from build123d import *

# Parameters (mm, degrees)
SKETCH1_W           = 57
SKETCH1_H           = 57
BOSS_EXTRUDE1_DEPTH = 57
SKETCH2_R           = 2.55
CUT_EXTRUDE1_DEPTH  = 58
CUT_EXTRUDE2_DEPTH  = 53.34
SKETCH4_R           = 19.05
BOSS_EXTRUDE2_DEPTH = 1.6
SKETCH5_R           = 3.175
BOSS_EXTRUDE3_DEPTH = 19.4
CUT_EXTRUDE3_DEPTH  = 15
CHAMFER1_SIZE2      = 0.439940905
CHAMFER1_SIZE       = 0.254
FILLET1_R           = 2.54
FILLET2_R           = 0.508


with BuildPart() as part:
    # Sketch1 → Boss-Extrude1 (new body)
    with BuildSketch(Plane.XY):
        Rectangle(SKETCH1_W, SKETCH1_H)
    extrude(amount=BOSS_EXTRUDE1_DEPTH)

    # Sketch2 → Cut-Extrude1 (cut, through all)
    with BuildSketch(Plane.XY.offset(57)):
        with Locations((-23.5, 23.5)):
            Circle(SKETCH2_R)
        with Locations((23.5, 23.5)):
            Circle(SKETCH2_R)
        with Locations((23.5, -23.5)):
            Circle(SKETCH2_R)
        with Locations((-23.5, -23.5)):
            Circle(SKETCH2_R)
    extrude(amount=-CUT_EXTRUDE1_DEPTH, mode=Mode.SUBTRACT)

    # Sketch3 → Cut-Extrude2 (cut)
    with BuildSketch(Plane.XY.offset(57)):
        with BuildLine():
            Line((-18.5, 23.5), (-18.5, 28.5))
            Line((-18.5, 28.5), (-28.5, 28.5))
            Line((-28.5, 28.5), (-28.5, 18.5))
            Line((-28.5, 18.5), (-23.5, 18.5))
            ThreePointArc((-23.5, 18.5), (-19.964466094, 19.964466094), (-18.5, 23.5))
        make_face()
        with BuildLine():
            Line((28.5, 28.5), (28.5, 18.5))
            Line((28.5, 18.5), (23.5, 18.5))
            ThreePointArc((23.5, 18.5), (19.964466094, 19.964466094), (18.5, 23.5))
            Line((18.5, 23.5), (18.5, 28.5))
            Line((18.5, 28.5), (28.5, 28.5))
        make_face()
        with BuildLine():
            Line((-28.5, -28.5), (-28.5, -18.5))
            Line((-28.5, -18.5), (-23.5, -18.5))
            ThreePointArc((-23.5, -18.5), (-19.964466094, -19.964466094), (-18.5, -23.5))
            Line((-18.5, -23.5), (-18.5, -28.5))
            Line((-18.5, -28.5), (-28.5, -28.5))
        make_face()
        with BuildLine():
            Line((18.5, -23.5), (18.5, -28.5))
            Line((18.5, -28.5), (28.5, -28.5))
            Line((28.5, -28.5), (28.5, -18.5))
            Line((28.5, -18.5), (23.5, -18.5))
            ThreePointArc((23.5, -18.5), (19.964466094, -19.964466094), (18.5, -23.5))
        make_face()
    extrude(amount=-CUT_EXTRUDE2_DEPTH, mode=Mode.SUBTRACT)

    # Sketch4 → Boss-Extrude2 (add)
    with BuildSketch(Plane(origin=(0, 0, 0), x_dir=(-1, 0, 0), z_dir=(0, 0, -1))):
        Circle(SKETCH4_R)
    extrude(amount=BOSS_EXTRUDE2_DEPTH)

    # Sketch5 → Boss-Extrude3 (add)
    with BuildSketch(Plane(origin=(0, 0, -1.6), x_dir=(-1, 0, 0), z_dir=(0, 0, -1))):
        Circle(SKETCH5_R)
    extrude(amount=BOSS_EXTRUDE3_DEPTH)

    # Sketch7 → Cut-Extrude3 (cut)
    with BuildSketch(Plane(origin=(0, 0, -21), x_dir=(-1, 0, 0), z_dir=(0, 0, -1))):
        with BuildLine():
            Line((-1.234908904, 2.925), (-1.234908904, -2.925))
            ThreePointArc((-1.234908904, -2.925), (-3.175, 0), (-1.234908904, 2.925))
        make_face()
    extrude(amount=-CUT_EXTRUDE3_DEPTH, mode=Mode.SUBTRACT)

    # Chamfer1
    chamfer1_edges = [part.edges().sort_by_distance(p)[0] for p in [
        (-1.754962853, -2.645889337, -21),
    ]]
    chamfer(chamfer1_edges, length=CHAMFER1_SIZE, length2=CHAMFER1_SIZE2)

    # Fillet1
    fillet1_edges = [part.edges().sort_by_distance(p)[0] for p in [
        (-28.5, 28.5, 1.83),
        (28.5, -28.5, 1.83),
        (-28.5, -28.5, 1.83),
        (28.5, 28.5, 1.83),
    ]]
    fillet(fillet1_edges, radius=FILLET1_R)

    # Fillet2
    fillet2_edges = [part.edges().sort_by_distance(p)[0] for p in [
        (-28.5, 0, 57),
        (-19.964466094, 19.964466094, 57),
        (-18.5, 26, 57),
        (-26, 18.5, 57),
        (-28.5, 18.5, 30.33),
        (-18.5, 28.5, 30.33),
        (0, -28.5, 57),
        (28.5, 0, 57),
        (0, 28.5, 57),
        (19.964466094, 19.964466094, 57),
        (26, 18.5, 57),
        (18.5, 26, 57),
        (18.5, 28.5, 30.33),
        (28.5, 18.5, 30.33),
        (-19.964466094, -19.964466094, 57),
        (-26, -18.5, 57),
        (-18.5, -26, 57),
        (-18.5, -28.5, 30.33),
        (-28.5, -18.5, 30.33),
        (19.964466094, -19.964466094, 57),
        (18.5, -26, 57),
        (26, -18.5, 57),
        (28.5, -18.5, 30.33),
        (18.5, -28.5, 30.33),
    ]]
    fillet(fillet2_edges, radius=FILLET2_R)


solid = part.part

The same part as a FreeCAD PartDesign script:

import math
import FreeCAD as App
import Part
import Sketcher
Q = App.Units.Quantity


def edges_at(feature, points):
    """Names of the edges that pass closest to the given points."""
    edges = feature.Shape.Edges
    near = lambda p: min(range(len(edges)), key=lambda i: edges[i].distToShape(Part.Vertex(*p))[0])
    return sorted({f"Edge{near(p) + 1}" for p in points})


def add_polygon(sketch, points):
    """Adds a closed chain of lines whose ends are joined by coincident constraints."""
    first, n = sketch.GeometryCount, len(points)
    for a, b in zip(points, points[1:] + points[:1]):
        sketch.addGeometry(Part.LineSegment(App.Vector(*a, 0), App.Vector(*b, 0)), False)
    for i in range(n):
        sketch.addConstraint(Sketcher.Constraint("Coincident", first + i, 2, first + (i + 1) % n, 1))

doc = App.newDocument("Part")
body = doc.addObject("PartDesign::Body", "Body")

# Sketch on XY plane
sketch1 = doc.addObject("Sketcher::SketchObject", "Sketch")
body.addObject(sketch1)
sketch1.AttachmentSupport = (doc.XY_Plane, [""])
sketch1.MapMode = "FlatFace"
add_polygon(sketch1, [(-28, 28), (-28, -28), (28, -28), (28, 28)])  # lines 0-3
sketch1.addConstraint([
    Sketcher.Constraint("Vertical", 0),
    Sketcher.Constraint("Horizontal", 1),
    Sketcher.Constraint("Vertical", 2),
    Sketcher.Constraint("Horizontal", 3),
    Sketcher.Constraint("Symmetric", 0, 2, 2, 2, -1, 1),
    Sketcher.Constraint("Equal", 3, 0),
    Sketcher.Constraint("DistanceX", 1, 1, 1, 2, Q("57 mm")),
])
pad1 = doc.addObject("PartDesign::Pad", "Pad")
body.addObject(pad1)
pad1.Profile = sketch1
pad1.Length = 57

# Sketch on XY plane
sketch2 = doc.addObject("Sketcher::SketchObject", "Sketch001")
body.addObject(sketch2)
sketch2.AttachmentSupport = (doc.XY_Plane, [""])
sketch2.MapMode = "FlatFace"
sketch2.AttachmentOffset = App.Placement(App.Vector(0, 0, 57), App.Rotation())
sketch2.addGeometry([
    Part.Circle(App.Vector(-23.5, 23.5, 0), App.Vector(0, 0, 1), 2.5),
    Part.Circle(App.Vector(23.5, 23.5, 0), App.Vector(0, 0, 1), 2.5),
    Part.Circle(App.Vector(23.5, -23.5, 0), App.Vector(0, 0, 1), 2.5),
    Part.Circle(App.Vector(-23.5, -23.5, 0), App.Vector(0, 0, 1), 2.5),
], False)
sketch2.addConstraint([
    Sketcher.Constraint("Equal", 0, 1),
    Sketcher.Constraint("Equal", 1, 2),
    Sketcher.Constraint("Equal", 2, 3),
    Sketcher.Constraint("Symmetric", 0, 3, 2, 3, -1, 1),
    Sketcher.Constraint("Symmetric", 1, 3, 3, 3, -1, 1),
    Sketcher.Constraint("Symmetric", 0, 3, 1, 3, -2),
    Sketcher.Constraint("Diameter", 0, Q("5.1 mm")),
    Sketcher.Constraint("DistanceX", 0, 3, 1, 3, Q("47 mm")),
    Sketcher.Constraint("DistanceY", 2, 3, 1, 3, Q("47 mm")),
])
pocket1 = doc.addObject("PartDesign::Pocket", "Pocket")
body.addObject(pocket1)
pocket1.Profile = sketch2
pocket1.Type = "ThroughAll"

# Sketch on XY plane
sketch3 = doc.addObject("Sketcher::SketchObject", "Sketch002")
body.addObject(sketch3)
sketch3.AttachmentSupport = (doc.XY_Plane, [""])
sketch3.MapMode = "FlatFace"
sketch3.AttachmentOffset = App.Placement(App.Vector(0, 0, 57), App.Rotation())
sketch3.addGeometry([
    Part.LineSegment(App.Vector(-18, 24, 0), App.Vector(-18, 28, 0)),  # 0
    Part.LineSegment(App.Vector(-18, 28, 0), App.Vector(-28, 28, 0)),  # 1
    Part.LineSegment(App.Vector(-28, 28, 0), App.Vector(-28, 18, 0)),  # 2
    Part.LineSegment(App.Vector(-28, 18, 0), App.Vector(-24, 18, 0)),  # 3
    Part.ArcOfCircle(Part.Circle(App.Vector(-24, 24, 0), App.Vector(0, 0, 1), 5), math.radians(-90), math.radians(0)),  # 4
    Part.LineSegment(App.Vector(28, 18, 0), App.Vector(28, 28, 0)),  # 5
    Part.LineSegment(App.Vector(28, 28, 0), App.Vector(18, 28, 0)),  # 6
    Part.LineSegment(App.Vector(18, 28, 0), App.Vector(18, 24, 0)),  # 7
    Part.ArcOfCircle(Part.Circle(App.Vector(24, 24, 0), App.Vector(0, 0, 1), 5), math.radians(180), math.radians(270)),  # 8
    Part.LineSegment(App.Vector(24, 18, 0), App.Vector(28, 18, 0)),  # 9
    Part.LineSegment(App.Vector(-28, -18, 0), App.Vector(-28, -28, 0)),  # 10
    Part.LineSegment(App.Vector(-28, -28, 0), App.Vector(-18, -28, 0)),  # 11
    Part.LineSegment(App.Vector(-18, -28, 0), App.Vector(-18, -24, 0)),  # 12
    Part.ArcOfCircle(Part.Circle(App.Vector(-24, -24, 0), App.Vector(0, 0, 1), 5), math.radians(0), math.radians(90)),  # 13
    Part.LineSegment(App.Vector(-24, -18, 0), App.Vector(-28, -18, 0)),  # 14
    Part.LineSegment(App.Vector(18, -24, 0), App.Vector(18, -28, 0)),  # 15
    Part.LineSegment(App.Vector(18, -28, 0), App.Vector(28, -28, 0)),  # 16
    Part.LineSegment(App.Vector(28, -28, 0), App.Vector(28, -18, 0)),  # 17
    Part.LineSegment(App.Vector(28, -18, 0), App.Vector(24, -18, 0)),  # 18
    Part.ArcOfCircle(Part.Circle(App.Vector(24, -24, 0), App.Vector(0, 0, 1), 5), math.radians(90), math.radians(180)),  # 19
], False)
sketch3.addConstraint([
    Sketcher.Constraint("Coincident", 0, 2, 1, 1),
    Sketcher.Constraint("Coincident", 1, 2, 2, 1),
    Sketcher.Constraint("Coincident", 2, 2, 3, 1),
    Sketcher.Constraint("Tangent", 3, 2, 4, 1),
    Sketcher.Constraint("Tangent", 4, 2, 0, 1),
    Sketcher.Constraint("Coincident", 5, 2, 6, 1),
    Sketcher.Constraint("Coincident", 6, 2, 7, 1),
    Sketcher.Constraint("Tangent", 7, 2, 8, 1),
    Sketcher.Constraint("Tangent", 8, 2, 9, 1),
    Sketcher.Constraint("Coincident", 9, 2, 5, 1),
    Sketcher.Constraint("Coincident", 10, 2, 11, 1),
    Sketcher.Constraint("Coincident", 11, 2, 12, 1),
    Sketcher.Constraint("Tangent", 12, 2, 13, 1),
    Sketcher.Constraint("Tangent", 13, 2, 14, 1),
    Sketcher.Constraint("Coincident", 14, 2, 10, 1),
    Sketcher.Constraint("Coincident", 15, 2, 16, 1),
    Sketcher.Constraint("Coincident", 16, 2, 17, 1),
    Sketcher.Constraint("Coincident", 17, 2, 18, 1),
    Sketcher.Constraint("Tangent", 18, 2, 19, 1),
    Sketcher.Constraint("Tangent", 19, 2, 15, 1),
    Sketcher.Constraint("Vertical", 0),
    Sketcher.Constraint("Horizontal", 1),
    Sketcher.Constraint("Vertical", 2),
    Sketcher.Constraint("Horizontal", 3),
    Sketcher.Constraint("Vertical", 5),
    Sketcher.Constraint("Horizontal", 6),
    Sketcher.Constraint("Vertical", 7),
    Sketcher.Constraint("Horizontal", 9),
    Sketcher.Constraint("Vertical", 10),
    Sketcher.Constraint("Horizontal", 11),
    Sketcher.Constraint("Vertical", 12),
    Sketcher.Constraint("Horizontal", 14),
    Sketcher.Constraint("Vertical", 15),
    Sketcher.Constraint("Horizontal", 16),
    Sketcher.Constraint("Vertical", 17),
    Sketcher.Constraint("Horizontal", 18),
    Sketcher.Constraint("Equal", 4, 8),
    Sketcher.Constraint("Equal", 8, 13),
    Sketcher.Constraint("Equal", 13, 19),
    Sketcher.Constraint("Symmetric", 8, 3, 13, 3, -1, 1),
    Sketcher.Constraint("Symmetric", 4, 3, 19, 3, -1, 1),
    Sketcher.Constraint("Symmetric", 5, 2, 10, 2, -1, 1),
    Sketcher.Constraint("Symmetric", 1, 2, 16, 2, -1, 1),
    Sketcher.Constraint("Symmetric", 4, 3, 8, 3, -2),
    Sketcher.Constraint("Symmetric", 1, 2, 5, 2, -2),
    Sketcher.Constraint("Equal", 18, 0),
    Sketcher.Constraint("Radius", 4, Q("5 mm")),
    Sketcher.Constraint("DistanceX", 1, 2, 1, 1, Q("10 mm")),
    Sketcher.Constraint("DistanceX", 4, 3, 8, 3, Q("47 mm")),
    Sketcher.Constraint("DistanceY", 13, 3, 4, 3, Q("47 mm")),
])
pocket2 = doc.addObject("PartDesign::Pocket", "Pocket001")
body.addObject(pocket2)
pocket2.Profile = sketch3
pocket2.Length = 53.34

# Sketch on XY plane
sketch4 = doc.addObject("Sketcher::SketchObject", "Sketch003")
body.addObject(sketch4)
sketch4.AttachmentSupport = (doc.XY_Plane, [""])
sketch4.MapMode = "FlatFace"
sketch4.addGeometry(Part.Circle(App.Vector(0, 0, 0), App.Vector(0, 0, 1), 19), False)
sketch4.addConstraint([
    Sketcher.Constraint("Coincident", 0, 3, -1, 1),
    Sketcher.Constraint("Diameter", 0, Q("38.1 mm")),
])
pad2 = doc.addObject("PartDesign::Pad", "Pad001")
body.addObject(pad2)
pad2.Profile = sketch4
pad2.Length = 1.6
pad2.Reversed = True

# Sketch on XY plane
sketch5 = doc.addObject("Sketcher::SketchObject", "Sketch004")
body.addObject(sketch5)
sketch5.AttachmentSupport = (doc.XY_Plane, [""])
sketch5.MapMode = "FlatFace"
sketch5.AttachmentOffset = App.Placement(App.Vector(0, 0, -1.6), App.Rotation())
sketch5.addGeometry(Part.Circle(App.Vector(0, 0, 0), App.Vector(0, 0, 1), 3.2), False)
sketch5.addConstraint([
    Sketcher.Constraint("Coincident", 0, 3, -1, 1),
    Sketcher.Constraint("Diameter", 0, Q("6.35 mm")),
])
pad3 = doc.addObject("PartDesign::Pad", "Pad002")
body.addObject(pad3)
pad3.Profile = sketch5
pad3.Length = 19.4
pad3.Reversed = True

# Sketch on XY plane
sketch6 = doc.addObject("Sketcher::SketchObject", "Sketch005")
body.addObject(sketch6)
sketch6.AttachmentSupport = (doc.XY_Plane, [""])
sketch6.MapMode = "FlatFace"
sketch6.AttachmentOffset = App.Placement(App.Vector(0, 0, -21), App.Rotation())
sketch6.addGeometry([
    Part.LineSegment(App.Vector(1.2, -2.9, 0), App.Vector(1.2, 2.9, 0)),
    Part.ArcOfCircle(Part.Circle(App.Vector(0, 0, 0), App.Vector(0, 0, 1), 3.2), math.radians(-67), math.radians(67)),
], False)
sketch6.addConstraint([
    Sketcher.Constraint("Coincident", 0, 1, 1, 1),
    Sketcher.Constraint("Coincident", 1, 2, 0, 2),
    Sketcher.Constraint("Vertical", 0),
    Sketcher.Constraint("Coincident", 1, 3, -1, 1),
    Sketcher.Constraint("Radius", 1, Q("3.175 mm")),
    Sketcher.Constraint("DistanceY", 0, 1, 0, 2, Q("5.85 mm")),
])
pocket3 = doc.addObject("PartDesign::Pocket", "Pocket002")
body.addObject(pocket3)
pocket3.Profile = sketch6
pocket3.Length = 15
pocket3.Reversed = True
doc.recompute()

chamfer = doc.addObject("PartDesign::Chamfer", "Chamfer")
body.addObject(chamfer)
chamfer.Base = (pocket3, edges_at(pocket3, [(-1.755, -2.646, -21)]))
chamfer.ChamferType = "Two distances"
chamfer.Size = 0.254
chamfer.Size2 = 0.439941
doc.recompute()

fillet = doc.addObject("PartDesign::Fillet", "Fillet")
body.addObject(fillet)
fillet.Base = (chamfer, edges_at(chamfer, [
    (-28.5, 28.5, 1.83),
    (28.5, -28.5, 1.83),
    (-28.5, -28.5, 1.83),
    (28.5, 28.5, 1.83),
]))
fillet.Radius = 2.54
doc.recompute()

fillet2 = doc.addObject("PartDesign::Fillet", "Fillet001")
body.addObject(fillet2)
fillet2.Base = (fillet, edges_at(fillet, [
    (-28.5, 0, 57),
    (-19.964, 19.964, 57),
    (-18.5, 26, 57),
    (-26, 18.5, 57),
    (-28.5, 18.5, 30.33),
    (-18.5, 28.5, 30.33),
    (0, -28.5, 57),
    (28.5, 0, 57),
    (0, 28.5, 57),
    (19.964, 19.964, 57),
    (26, 18.5, 57),
    (18.5, 26, 57),
    (18.5, 28.5, 30.33),
    (28.5, 18.5, 30.33),
    (-19.964, -19.964, 57),
    (-26, -18.5, 57),
    (-18.5, -26, 57),
    (-18.5, -28.5, 30.33),
    (-28.5, -18.5, 30.33),
    (19.964, -19.964, 57),
    (18.5, -26, 57),
    (26, -18.5, 57),
    (28.5, -18.5, 30.33),
    (18.5, -28.5, 30.33),
]))
fillet2.Radius = 0.508

doc.recompute()
